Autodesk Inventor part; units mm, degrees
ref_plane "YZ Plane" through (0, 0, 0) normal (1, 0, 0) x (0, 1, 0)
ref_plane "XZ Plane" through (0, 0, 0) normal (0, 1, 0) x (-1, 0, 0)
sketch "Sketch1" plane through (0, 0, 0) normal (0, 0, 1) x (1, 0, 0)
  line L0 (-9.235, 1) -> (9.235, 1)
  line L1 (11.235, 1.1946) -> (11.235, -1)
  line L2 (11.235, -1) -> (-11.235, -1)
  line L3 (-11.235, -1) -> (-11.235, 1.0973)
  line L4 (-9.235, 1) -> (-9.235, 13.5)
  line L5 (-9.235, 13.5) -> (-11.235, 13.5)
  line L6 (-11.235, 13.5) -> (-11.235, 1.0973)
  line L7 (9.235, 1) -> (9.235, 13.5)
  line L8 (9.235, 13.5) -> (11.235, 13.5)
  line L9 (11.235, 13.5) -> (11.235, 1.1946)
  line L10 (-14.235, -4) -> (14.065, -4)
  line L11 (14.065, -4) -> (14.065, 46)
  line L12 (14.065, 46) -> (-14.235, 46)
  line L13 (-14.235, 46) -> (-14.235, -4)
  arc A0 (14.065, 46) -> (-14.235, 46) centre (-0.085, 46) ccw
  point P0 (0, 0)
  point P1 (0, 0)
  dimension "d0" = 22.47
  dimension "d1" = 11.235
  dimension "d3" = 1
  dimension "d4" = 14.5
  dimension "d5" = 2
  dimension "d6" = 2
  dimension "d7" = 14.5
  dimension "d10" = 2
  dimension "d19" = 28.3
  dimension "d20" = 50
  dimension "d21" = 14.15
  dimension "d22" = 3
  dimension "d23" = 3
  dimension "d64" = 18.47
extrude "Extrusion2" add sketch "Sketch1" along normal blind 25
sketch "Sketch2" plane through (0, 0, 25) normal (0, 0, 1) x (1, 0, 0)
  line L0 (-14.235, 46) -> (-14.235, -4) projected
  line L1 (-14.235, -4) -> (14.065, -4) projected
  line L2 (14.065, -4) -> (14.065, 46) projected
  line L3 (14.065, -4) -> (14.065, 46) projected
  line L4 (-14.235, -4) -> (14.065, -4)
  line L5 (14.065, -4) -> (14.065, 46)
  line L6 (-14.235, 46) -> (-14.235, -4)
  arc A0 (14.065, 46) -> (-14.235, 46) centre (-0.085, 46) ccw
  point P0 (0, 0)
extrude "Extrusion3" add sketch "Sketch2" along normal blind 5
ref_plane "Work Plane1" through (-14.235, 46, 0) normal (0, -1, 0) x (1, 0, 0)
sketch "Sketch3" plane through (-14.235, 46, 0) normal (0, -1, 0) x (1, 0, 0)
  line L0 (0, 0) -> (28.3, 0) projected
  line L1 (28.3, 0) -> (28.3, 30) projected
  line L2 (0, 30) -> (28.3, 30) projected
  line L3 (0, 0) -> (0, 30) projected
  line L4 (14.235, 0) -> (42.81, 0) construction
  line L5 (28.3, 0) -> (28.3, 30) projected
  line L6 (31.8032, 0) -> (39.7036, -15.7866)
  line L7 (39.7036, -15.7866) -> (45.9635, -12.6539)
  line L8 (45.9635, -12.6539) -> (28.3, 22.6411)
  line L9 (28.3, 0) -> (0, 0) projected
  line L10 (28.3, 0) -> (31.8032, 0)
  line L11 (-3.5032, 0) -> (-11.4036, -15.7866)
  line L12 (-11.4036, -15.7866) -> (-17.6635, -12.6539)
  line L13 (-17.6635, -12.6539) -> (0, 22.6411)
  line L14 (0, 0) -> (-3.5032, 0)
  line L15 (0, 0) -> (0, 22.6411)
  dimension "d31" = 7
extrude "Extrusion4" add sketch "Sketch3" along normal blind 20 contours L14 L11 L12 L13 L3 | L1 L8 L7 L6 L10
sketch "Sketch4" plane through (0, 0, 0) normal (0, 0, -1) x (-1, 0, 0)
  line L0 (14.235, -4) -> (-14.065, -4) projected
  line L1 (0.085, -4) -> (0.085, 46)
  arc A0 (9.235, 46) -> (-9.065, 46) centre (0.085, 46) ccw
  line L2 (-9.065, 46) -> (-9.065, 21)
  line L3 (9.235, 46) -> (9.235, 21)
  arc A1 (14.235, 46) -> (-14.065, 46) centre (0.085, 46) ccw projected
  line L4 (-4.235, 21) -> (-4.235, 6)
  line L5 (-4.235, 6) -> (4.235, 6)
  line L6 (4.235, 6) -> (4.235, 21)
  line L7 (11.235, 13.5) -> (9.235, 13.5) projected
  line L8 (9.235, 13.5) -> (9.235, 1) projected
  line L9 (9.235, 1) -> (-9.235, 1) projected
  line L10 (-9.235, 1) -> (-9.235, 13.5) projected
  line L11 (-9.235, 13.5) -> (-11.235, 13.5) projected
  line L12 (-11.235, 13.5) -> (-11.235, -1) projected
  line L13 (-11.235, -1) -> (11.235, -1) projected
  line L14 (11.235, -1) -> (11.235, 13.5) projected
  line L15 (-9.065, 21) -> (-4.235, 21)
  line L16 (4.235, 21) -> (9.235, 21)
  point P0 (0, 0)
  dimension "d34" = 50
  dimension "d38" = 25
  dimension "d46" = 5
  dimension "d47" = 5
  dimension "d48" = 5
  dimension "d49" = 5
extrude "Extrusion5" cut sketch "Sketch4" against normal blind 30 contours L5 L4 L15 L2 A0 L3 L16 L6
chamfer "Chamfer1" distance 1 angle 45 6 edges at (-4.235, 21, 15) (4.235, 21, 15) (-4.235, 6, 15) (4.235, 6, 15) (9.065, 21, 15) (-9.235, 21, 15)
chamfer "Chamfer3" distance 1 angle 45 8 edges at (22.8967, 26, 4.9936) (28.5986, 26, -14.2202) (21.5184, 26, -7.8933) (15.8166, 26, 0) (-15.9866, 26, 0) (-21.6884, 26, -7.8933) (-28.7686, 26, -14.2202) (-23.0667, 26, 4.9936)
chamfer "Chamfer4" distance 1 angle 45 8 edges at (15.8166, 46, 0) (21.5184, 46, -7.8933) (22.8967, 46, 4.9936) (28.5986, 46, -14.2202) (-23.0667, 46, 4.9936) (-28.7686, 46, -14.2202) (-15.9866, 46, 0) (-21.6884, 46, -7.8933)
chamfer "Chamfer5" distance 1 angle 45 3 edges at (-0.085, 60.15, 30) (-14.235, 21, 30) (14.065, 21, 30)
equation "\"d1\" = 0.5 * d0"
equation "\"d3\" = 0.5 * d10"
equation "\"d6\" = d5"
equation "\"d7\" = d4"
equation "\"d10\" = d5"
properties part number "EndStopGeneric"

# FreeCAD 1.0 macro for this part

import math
import FreeCAD as App
import Part
import Sketcher

V = App.Vector
Q = App.Units.Quantity


def edges_at(feature, points):
    """Names of the edges that pass closest to the given points."""
    edges = feature.Shape.Edges
    near = lambda p: min(range(len(edges)), key=lambda i: edges[i].distToShape(Part.Vertex(*p))[0])
    return sorted({f"Edge{near(p) + 1}" for p in points})

doc = App.newDocument("Part")
body = doc.addObject("PartDesign::Body", "Body")

# Sketch on XY plane
sketch1 = doc.addObject("Sketcher::SketchObject", "Sketch")
body.addObject(sketch1)
sketch1.AttachmentSupport = (doc.XY_Plane, [""])
sketch1.MapMode = "FlatFace"
sketch1.addGeometry([
    Part.LineSegment(V(-14.2, 46, 0), V(-14.2, -4, 0)),  # 0
    Part.LineSegment(V(-14.2, -4, 0), V(14.1, -4, 0)),  # 1
    Part.LineSegment(V(14.1, -4, 0), V(14.1, 46, 0)),  # 2
    Part.ArcOfCircle(Part.Circle(V(-0.1, 46, 0), V(0, 0, 1), 14.2), math.radians(0), math.radians(180)),  # 3
    Part.LineSegment(V(-9.2, 13.5, 0), V(-9.2, 1, 0)),  # 4
    Part.LineSegment(V(-9.2, 1, 0), V(9.2, 1, 0)),  # 5
    Part.LineSegment(V(9.2, 1, 0), V(9.2, 13.5, 0)),  # 6
    Part.LineSegment(V(9.2, 13.5, 0), V(11.2, 13.5, 0)),  # 7
    Part.LineSegment(V(11.2, 13.5, 0), V(11.2, -1, 0)),  # 8
    Part.LineSegment(V(11.2, -1, 0), V(-11.2, -1, 0)),  # 9
    Part.LineSegment(V(-11.2, -1, 0), V(-11.2, 13.5, 0)),  # 10
    Part.LineSegment(V(-11.2, 13.5, 0), V(-9.2, 13.5, 0)),  # 11
], False)
sketch1.addConstraint([
    Sketcher.Constraint("Coincident", 0, 2, 1, 1),
    Sketcher.Constraint("Coincident", 1, 2, 2, 1),
    Sketcher.Constraint("Tangent", 2, 2, 3, 1),
    Sketcher.Constraint("Tangent", 3, 2, 0, 1),
    Sketcher.Constraint("Coincident", 4, 2, 5, 1),
    Sketcher.Constraint("Coincident", 5, 2, 6, 1),
    Sketcher.Constraint("Coincident", 6, 2, 7, 1),
    Sketcher.Constraint("Coincident", 7, 2, 8, 1),
    Sketcher.Constraint("Coincident", 8, 2, 9, 1),
    Sketcher.Constraint("Coincident", 9, 2, 10, 1),
    Sketcher.Constraint("Coincident", 10, 2, 11, 1),
    Sketcher.Constraint("Coincident", 11, 2, 4, 1),
    Sketcher.Constraint("Vertical", 0),
    Sketcher.Constraint("Horizontal", 1),
    Sketcher.Constraint("Vertical", 2),
    Sketcher.Constraint("Vertical", 4),
    Sketcher.Constraint("Horizontal", 5),
    Sketcher.Constraint("Vertical", 6),
    Sketcher.Constraint("Horizontal", 7),
    Sketcher.Constraint("Vertical", 8),
    Sketcher.Constraint("Horizontal", 9),
    Sketcher.Constraint("Vertical", 10),
    Sketcher.Constraint("Horizontal", 11),
    Sketcher.Constraint("Symmetric", 7, 2, 10, 2, -2),
    Sketcher.Constraint("Equal", 7, 11),
    Sketcher.Constraint("DistanceX", 7, 1, 7, 2, Q("2 mm")),
    Sketcher.Constraint("DistanceY", 0, 2, 0, 1, Q("50 mm")),
    Sketcher.Constraint("Radius", 3, Q("14.15 mm")),
    Sketcher.Constraint("DistanceY", 8, 2, 8, 1, Q("14.5 mm")),
    Sketcher.Constraint("DistanceY", -1, 1, 4, 2, Q("1 mm")),
    Sketcher.Constraint("DistanceY", 8, 2, -1, 1, Q("1 mm")),
    Sketcher.Constraint("DistanceY", 1, 2, 8, 2, Q("3 mm")),
    Sketcher.Constraint("DistanceX", 0, 2, 9, 2, Q("3 mm")),
    Sketcher.Constraint("DistanceX", 5, 1, 5, 2, Q("18.47 mm")),
])
pad1 = doc.addObject("PartDesign::Pad", "Pad")
body.addObject(pad1)
pad1.Profile = sketch1
pad1.Length = 25

# Sketch on XY plane
sketch2 = doc.addObject("Sketcher::SketchObject", "Sketch001")
body.addObject(sketch2)
sketch2.AttachmentSupport = (doc.XY_Plane, [""])
sketch2.MapMode = "FlatFace"
sketch2.AttachmentOffset = App.Placement(V(0, 0, 25), App.Rotation())
sketch2.addGeometry([
    Part.ArcOfCircle(Part.Circle(V(0, 46, 0), V(0, 0, 1), 14), math.radians(0), math.radians(180)),
    Part.LineSegment(V(-14, 46, 0), V(-14, -4, 0)),
    Part.LineSegment(V(-14, -4, 0), V(14, -4, 0)),
    Part.LineSegment(V(14, -4, 0), V(14, 46, 0)),
], False)
sketch2.addConstraint([
    Sketcher.Constraint("Tangent", 0, 2, 1, 1),
    Sketcher.Constraint("Coincident", 1, 2, 2, 1),
    Sketcher.Constraint("Coincident", 2, 2, 3, 1),
    Sketcher.Constraint("Tangent", 3, 2, 0, 1),
    Sketcher.Constraint("Vertical", 1),
    Sketcher.Constraint("Horizontal", 2),
    Sketcher.Constraint("Vertical", 3),
    Sketcher.Constraint("DistanceY", 1, 2, 1, 1, Q("50 mm")),
    Sketcher.Constraint("Radius", 0, Q("14.15 mm")),
    Sketcher.Constraint("DistanceY", -1, 1, 0, 3, Q("46 mm")),
    Sketcher.Constraint("DistanceX", 0, 3, -1, 1, Q("0.085 mm")),
])
pad2 = doc.addObject("PartDesign::Pad", "Pad001")
body.addObject(pad2)
pad2.Profile = sketch2
pad2.Length = 5

# Sketch on XZ plane
sketch3 = doc.addObject("Sketcher::SketchObject", "Sketch002")
body.addObject(sketch3)
sketch3.AttachmentSupport = (doc.XZ_Plane, [""])
sketch3.MapMode = "FlatFace"
sketch3.AttachmentOffset = App.Placement(V(0, 0, -46), App.Rotation())
sketch3.addGeometry([
    Part.LineSegment(V(-17.7382, 0, 0), V(-14.235, 0, 0)),  # 0
    Part.LineSegment(V(-14.235, 0, 0), V(-14.235, 22.6411, 0)),  # 1
    Part.LineSegment(V(-14.235, 22.6411, 0), V(-31.8985, -12.6539, 0)),  # 2
    Part.LineSegment(V(-31.8985, -12.6539, 0), V(-25.6386, -15.7866, 0)),  # 3
    Part.LineSegment(V(-25.6386, -15.7866, 0), V(-17.7382, 0, 0)),  # 4
    Part.LineSegment(V(14.065, 22.6411, 0), V(14.065, 0, 0)),  # 5
    Part.LineSegment(V(14.065, 0, 0), V(17.5682, 0, 0)),  # 6
    Part.LineSegment(V(17.5682, 0, 0), V(25.4686, -15.7866, 0)),  # 7
    Part.LineSegment(V(25.4686, -15.7866, 0), V(31.7285, -12.6539, 0)),  # 8
    Part.LineSegment(V(31.7285, -12.6539, 0), V(14.065, 22.6411, 0)),  # 9
], False)
sketch3.addConstraint([
    Sketcher.Constraint("Coincident", 0, 2, 1, 1),
    Sketcher.Constraint("Coincident", 1, 2, 2, 1),
    Sketcher.Constraint("Coincident", 2, 2, 3, 1),
    Sketcher.Constraint("Coincident", 3, 2, 4, 1),
    Sketcher.Constraint("Coincident", 4, 2, 0, 1),
    Sketcher.Constraint("Coincident", 5, 2, 6, 1),
    Sketcher.Constraint("Coincident", 6, 2, 7, 1),
    Sketcher.Constraint("Coincident", 7, 2, 8, 1),
    Sketcher.Constraint("Coincident", 8, 2, 9, 1),
    Sketcher.Constraint("Coincident", 9, 2, 5, 1),
    Sketcher.Constraint("Horizontal", 0),
    Sketcher.Constraint("Vertical", 1),
    Sketcher.Constraint("Vertical", 5),
    Sketcher.Constraint("Horizontal", 6),
    Sketcher.Constraint("PointOnObject", 0, 2, -1),
    Sketcher.Constraint("PointOnObject", 5, 2, -1),
    Sketcher.Constraint("Distance", 3, Q("7 mm")),
    Sketcher.Constraint("Distance", 8, Q("7 mm")),
    Sketcher.Constraint("DistanceX", 0, 2, 5, 2, Q("28.3 mm")),
    Sketcher.Constraint("DistanceY", 1, 1, 1, 2, Q("22.641 mm")),
    Sketcher.Constraint("DistanceY", 5, 2, 5, 1, Q("22.641 mm")),
    Sketcher.Constraint("DistanceX", 2, 2, 3, 2, Q("6.26 mm")),
    Sketcher.Constraint("DistanceX", 7, 2, 8, 2, Q("6.26 mm")),
    Sketcher.Constraint("DistanceX", 0, 1, 0, 2, Q("3.5032 mm")),
    Sketcher.Constraint("DistanceX", 6, 1, 6, 2, Q("3.5032 mm")),
    Sketcher.Constraint("DistanceX", 0, 2, -1, 1, Q("14.235 mm")),
    Sketcher.Constraint("DistanceY", 2, 2, -1, 1, Q("12.654 mm")),
    Sketcher.Constraint("DistanceY", 8, 2, -1, 1, Q("12.654 mm")),
    Sketcher.Constraint("Distance", 2, Q("39.4682 mm")),
    Sketcher.Constraint("Distance", 7, Q("17.6531 mm")),
])
pad3 = doc.addObject("PartDesign::Pad", "Pad002")
body.addObject(pad3)
pad3.Profile = sketch3
pad3.Length = 20

# Sketch on XY plane
sketch4 = doc.addObject("Sketcher::SketchObject", "Sketch003")
body.addObject(sketch4)
sketch4.AttachmentSupport = (doc.XY_Plane, [""])
sketch4.MapMode = "FlatFace"
sketch4.addGeometry([
    Part.LineSegment(V(4.2, 6, 0), V(-4.2, 6, 0)),  # 0
    Part.LineSegment(V(-4.2, 6, 0), V(-4.2, 21, 0)),  # 1
    Part.LineSegment(V(-4.2, 21, 0), V(-9.2, 21, 0)),  # 2
    Part.LineSegment(V(-9.2, 21, 0), V(-9.2, 46, 0)),  # 3
    Part.ArcOfCircle(Part.Circle(V(-0.1, 46, 0), V(0, 0, 1), 9.1), math.radians(0), math.radians(180)),  # 4
    Part.LineSegment(V(9.1, 46, 0), V(9.1, 21, 0)),  # 5
    Part.LineSegment(V(9.1, 21, 0), V(4.2, 21, 0)),  # 6
    Part.LineSegment(V(4.2, 21, 0), V(4.2, 6, 0)),  # 7
], False)
sketch4.addConstraint([
    Sketcher.Constraint("Coincident", 0, 2, 1, 1),
    Sketcher.Constraint("Coincident", 1, 2, 2, 1),
    Sketcher.Constraint("Coincident", 2, 2, 3, 1),
    Sketcher.Constraint("Tangent", 3, 2, 4, 2),
    Sketcher.Constraint("Tangent", 4, 1, 5, 1),
    Sketcher.Constraint("Coincident", 5, 2, 6, 1),
    Sketcher.Constraint("Coincident", 6, 2, 7, 1),
    Sketcher.Constraint("Coincident", 7, 2, 0, 1),
    Sketcher.Constraint("Horizontal", 0),
    Sketcher.Constraint("Vertical", 1),
    Sketcher.Constraint("Horizontal", 2),
    Sketcher.Constraint("Vertical", 3),
    Sketcher.Constraint("Vertical", 5),
    Sketcher.Constraint("Horizontal", 6),
    Sketcher.Constraint("Vertical", 7),
    Sketcher.Constraint("Symmetric", 1, 2, 6, 2, -2),
    Sketcher.Constraint("DistanceX", 2, 2, 2, 1, Q("5 mm")),
    Sketcher.Constraint("DistanceY", 3, 1, 3, 2, Q("25 mm")),
    Sketcher.Constraint("DistanceY", 1, 1, 1, 2, Q("15 mm")),
    Sketcher.Constraint("Radius", 4, Q("9.15 mm")),
    Sketcher.Constraint("DistanceY", -1, 1, 4, 3, Q("46 mm")),
    Sketcher.Constraint("DistanceX", 0, 2, 0, 1, Q("8.47 mm")),
])
pocket1 = doc.addObject("PartDesign::Pocket", "Pocket")
body.addObject(pocket1)
pocket1.Profile = sketch4
pocket1.Length = 30
pocket1.Reversed = True
doc.recompute()

chamfer = doc.addObject("PartDesign::Chamfer", "Chamfer")
body.addObject(chamfer)
chamfer.Base = (pocket1, edges_at(pocket1, [
    (-4.235, 21, 15),
    (4.235, 21, 15),
    (-4.235, 6, 15),
    (4.235, 6, 15),
    (9.065, 21, 15),
    (-9.235, 21, 15),
]))
chamfer.Size = 1
doc.recompute()

chamfer2 = doc.addObject("PartDesign::Chamfer", "Chamfer001")
body.addObject(chamfer2)
chamfer2.Base = (chamfer, edges_at(chamfer, [
    (22.897, 26, 4.994),
    (28.599, 26, -14.22),
    (21.518, 26, -7.893),
    (15.817, 26, 0),
    (-15.987, 26, 0),
    (-21.688, 26, -7.893),
    (-28.769, 26, -14.22),
    (-23.067, 26, 4.994),
]))
chamfer2.Size = 1
doc.recompute()

chamfer3 = doc.addObject("PartDesign::Chamfer", "Chamfer002")
body.addObject(chamfer3)
chamfer3.Base = (chamfer2, edges_at(chamfer2, [
    (15.817, 46, 0),
    (21.518, 46, -7.893),
    (22.897, 46, 4.994),
    (28.599, 46, -14.22),
    (-23.067, 46, 4.994),
    (-28.769, 46, -14.22),
    (-15.987, 46, 0),
    (-21.688, 46, -7.893),
]))
chamfer3.Size = 1
doc.recompute()

chamfer4 = doc.addObject("PartDesign::Chamfer", "Chamfer003")
body.addObject(chamfer4)
chamfer4.Base = (chamfer3, edges_at(chamfer3, [(-0.085, 60.15, 30), (-14.235, 21, 30), (14.065, 21, 30)]))
chamfer4.Size = 1

doc.recompute()
